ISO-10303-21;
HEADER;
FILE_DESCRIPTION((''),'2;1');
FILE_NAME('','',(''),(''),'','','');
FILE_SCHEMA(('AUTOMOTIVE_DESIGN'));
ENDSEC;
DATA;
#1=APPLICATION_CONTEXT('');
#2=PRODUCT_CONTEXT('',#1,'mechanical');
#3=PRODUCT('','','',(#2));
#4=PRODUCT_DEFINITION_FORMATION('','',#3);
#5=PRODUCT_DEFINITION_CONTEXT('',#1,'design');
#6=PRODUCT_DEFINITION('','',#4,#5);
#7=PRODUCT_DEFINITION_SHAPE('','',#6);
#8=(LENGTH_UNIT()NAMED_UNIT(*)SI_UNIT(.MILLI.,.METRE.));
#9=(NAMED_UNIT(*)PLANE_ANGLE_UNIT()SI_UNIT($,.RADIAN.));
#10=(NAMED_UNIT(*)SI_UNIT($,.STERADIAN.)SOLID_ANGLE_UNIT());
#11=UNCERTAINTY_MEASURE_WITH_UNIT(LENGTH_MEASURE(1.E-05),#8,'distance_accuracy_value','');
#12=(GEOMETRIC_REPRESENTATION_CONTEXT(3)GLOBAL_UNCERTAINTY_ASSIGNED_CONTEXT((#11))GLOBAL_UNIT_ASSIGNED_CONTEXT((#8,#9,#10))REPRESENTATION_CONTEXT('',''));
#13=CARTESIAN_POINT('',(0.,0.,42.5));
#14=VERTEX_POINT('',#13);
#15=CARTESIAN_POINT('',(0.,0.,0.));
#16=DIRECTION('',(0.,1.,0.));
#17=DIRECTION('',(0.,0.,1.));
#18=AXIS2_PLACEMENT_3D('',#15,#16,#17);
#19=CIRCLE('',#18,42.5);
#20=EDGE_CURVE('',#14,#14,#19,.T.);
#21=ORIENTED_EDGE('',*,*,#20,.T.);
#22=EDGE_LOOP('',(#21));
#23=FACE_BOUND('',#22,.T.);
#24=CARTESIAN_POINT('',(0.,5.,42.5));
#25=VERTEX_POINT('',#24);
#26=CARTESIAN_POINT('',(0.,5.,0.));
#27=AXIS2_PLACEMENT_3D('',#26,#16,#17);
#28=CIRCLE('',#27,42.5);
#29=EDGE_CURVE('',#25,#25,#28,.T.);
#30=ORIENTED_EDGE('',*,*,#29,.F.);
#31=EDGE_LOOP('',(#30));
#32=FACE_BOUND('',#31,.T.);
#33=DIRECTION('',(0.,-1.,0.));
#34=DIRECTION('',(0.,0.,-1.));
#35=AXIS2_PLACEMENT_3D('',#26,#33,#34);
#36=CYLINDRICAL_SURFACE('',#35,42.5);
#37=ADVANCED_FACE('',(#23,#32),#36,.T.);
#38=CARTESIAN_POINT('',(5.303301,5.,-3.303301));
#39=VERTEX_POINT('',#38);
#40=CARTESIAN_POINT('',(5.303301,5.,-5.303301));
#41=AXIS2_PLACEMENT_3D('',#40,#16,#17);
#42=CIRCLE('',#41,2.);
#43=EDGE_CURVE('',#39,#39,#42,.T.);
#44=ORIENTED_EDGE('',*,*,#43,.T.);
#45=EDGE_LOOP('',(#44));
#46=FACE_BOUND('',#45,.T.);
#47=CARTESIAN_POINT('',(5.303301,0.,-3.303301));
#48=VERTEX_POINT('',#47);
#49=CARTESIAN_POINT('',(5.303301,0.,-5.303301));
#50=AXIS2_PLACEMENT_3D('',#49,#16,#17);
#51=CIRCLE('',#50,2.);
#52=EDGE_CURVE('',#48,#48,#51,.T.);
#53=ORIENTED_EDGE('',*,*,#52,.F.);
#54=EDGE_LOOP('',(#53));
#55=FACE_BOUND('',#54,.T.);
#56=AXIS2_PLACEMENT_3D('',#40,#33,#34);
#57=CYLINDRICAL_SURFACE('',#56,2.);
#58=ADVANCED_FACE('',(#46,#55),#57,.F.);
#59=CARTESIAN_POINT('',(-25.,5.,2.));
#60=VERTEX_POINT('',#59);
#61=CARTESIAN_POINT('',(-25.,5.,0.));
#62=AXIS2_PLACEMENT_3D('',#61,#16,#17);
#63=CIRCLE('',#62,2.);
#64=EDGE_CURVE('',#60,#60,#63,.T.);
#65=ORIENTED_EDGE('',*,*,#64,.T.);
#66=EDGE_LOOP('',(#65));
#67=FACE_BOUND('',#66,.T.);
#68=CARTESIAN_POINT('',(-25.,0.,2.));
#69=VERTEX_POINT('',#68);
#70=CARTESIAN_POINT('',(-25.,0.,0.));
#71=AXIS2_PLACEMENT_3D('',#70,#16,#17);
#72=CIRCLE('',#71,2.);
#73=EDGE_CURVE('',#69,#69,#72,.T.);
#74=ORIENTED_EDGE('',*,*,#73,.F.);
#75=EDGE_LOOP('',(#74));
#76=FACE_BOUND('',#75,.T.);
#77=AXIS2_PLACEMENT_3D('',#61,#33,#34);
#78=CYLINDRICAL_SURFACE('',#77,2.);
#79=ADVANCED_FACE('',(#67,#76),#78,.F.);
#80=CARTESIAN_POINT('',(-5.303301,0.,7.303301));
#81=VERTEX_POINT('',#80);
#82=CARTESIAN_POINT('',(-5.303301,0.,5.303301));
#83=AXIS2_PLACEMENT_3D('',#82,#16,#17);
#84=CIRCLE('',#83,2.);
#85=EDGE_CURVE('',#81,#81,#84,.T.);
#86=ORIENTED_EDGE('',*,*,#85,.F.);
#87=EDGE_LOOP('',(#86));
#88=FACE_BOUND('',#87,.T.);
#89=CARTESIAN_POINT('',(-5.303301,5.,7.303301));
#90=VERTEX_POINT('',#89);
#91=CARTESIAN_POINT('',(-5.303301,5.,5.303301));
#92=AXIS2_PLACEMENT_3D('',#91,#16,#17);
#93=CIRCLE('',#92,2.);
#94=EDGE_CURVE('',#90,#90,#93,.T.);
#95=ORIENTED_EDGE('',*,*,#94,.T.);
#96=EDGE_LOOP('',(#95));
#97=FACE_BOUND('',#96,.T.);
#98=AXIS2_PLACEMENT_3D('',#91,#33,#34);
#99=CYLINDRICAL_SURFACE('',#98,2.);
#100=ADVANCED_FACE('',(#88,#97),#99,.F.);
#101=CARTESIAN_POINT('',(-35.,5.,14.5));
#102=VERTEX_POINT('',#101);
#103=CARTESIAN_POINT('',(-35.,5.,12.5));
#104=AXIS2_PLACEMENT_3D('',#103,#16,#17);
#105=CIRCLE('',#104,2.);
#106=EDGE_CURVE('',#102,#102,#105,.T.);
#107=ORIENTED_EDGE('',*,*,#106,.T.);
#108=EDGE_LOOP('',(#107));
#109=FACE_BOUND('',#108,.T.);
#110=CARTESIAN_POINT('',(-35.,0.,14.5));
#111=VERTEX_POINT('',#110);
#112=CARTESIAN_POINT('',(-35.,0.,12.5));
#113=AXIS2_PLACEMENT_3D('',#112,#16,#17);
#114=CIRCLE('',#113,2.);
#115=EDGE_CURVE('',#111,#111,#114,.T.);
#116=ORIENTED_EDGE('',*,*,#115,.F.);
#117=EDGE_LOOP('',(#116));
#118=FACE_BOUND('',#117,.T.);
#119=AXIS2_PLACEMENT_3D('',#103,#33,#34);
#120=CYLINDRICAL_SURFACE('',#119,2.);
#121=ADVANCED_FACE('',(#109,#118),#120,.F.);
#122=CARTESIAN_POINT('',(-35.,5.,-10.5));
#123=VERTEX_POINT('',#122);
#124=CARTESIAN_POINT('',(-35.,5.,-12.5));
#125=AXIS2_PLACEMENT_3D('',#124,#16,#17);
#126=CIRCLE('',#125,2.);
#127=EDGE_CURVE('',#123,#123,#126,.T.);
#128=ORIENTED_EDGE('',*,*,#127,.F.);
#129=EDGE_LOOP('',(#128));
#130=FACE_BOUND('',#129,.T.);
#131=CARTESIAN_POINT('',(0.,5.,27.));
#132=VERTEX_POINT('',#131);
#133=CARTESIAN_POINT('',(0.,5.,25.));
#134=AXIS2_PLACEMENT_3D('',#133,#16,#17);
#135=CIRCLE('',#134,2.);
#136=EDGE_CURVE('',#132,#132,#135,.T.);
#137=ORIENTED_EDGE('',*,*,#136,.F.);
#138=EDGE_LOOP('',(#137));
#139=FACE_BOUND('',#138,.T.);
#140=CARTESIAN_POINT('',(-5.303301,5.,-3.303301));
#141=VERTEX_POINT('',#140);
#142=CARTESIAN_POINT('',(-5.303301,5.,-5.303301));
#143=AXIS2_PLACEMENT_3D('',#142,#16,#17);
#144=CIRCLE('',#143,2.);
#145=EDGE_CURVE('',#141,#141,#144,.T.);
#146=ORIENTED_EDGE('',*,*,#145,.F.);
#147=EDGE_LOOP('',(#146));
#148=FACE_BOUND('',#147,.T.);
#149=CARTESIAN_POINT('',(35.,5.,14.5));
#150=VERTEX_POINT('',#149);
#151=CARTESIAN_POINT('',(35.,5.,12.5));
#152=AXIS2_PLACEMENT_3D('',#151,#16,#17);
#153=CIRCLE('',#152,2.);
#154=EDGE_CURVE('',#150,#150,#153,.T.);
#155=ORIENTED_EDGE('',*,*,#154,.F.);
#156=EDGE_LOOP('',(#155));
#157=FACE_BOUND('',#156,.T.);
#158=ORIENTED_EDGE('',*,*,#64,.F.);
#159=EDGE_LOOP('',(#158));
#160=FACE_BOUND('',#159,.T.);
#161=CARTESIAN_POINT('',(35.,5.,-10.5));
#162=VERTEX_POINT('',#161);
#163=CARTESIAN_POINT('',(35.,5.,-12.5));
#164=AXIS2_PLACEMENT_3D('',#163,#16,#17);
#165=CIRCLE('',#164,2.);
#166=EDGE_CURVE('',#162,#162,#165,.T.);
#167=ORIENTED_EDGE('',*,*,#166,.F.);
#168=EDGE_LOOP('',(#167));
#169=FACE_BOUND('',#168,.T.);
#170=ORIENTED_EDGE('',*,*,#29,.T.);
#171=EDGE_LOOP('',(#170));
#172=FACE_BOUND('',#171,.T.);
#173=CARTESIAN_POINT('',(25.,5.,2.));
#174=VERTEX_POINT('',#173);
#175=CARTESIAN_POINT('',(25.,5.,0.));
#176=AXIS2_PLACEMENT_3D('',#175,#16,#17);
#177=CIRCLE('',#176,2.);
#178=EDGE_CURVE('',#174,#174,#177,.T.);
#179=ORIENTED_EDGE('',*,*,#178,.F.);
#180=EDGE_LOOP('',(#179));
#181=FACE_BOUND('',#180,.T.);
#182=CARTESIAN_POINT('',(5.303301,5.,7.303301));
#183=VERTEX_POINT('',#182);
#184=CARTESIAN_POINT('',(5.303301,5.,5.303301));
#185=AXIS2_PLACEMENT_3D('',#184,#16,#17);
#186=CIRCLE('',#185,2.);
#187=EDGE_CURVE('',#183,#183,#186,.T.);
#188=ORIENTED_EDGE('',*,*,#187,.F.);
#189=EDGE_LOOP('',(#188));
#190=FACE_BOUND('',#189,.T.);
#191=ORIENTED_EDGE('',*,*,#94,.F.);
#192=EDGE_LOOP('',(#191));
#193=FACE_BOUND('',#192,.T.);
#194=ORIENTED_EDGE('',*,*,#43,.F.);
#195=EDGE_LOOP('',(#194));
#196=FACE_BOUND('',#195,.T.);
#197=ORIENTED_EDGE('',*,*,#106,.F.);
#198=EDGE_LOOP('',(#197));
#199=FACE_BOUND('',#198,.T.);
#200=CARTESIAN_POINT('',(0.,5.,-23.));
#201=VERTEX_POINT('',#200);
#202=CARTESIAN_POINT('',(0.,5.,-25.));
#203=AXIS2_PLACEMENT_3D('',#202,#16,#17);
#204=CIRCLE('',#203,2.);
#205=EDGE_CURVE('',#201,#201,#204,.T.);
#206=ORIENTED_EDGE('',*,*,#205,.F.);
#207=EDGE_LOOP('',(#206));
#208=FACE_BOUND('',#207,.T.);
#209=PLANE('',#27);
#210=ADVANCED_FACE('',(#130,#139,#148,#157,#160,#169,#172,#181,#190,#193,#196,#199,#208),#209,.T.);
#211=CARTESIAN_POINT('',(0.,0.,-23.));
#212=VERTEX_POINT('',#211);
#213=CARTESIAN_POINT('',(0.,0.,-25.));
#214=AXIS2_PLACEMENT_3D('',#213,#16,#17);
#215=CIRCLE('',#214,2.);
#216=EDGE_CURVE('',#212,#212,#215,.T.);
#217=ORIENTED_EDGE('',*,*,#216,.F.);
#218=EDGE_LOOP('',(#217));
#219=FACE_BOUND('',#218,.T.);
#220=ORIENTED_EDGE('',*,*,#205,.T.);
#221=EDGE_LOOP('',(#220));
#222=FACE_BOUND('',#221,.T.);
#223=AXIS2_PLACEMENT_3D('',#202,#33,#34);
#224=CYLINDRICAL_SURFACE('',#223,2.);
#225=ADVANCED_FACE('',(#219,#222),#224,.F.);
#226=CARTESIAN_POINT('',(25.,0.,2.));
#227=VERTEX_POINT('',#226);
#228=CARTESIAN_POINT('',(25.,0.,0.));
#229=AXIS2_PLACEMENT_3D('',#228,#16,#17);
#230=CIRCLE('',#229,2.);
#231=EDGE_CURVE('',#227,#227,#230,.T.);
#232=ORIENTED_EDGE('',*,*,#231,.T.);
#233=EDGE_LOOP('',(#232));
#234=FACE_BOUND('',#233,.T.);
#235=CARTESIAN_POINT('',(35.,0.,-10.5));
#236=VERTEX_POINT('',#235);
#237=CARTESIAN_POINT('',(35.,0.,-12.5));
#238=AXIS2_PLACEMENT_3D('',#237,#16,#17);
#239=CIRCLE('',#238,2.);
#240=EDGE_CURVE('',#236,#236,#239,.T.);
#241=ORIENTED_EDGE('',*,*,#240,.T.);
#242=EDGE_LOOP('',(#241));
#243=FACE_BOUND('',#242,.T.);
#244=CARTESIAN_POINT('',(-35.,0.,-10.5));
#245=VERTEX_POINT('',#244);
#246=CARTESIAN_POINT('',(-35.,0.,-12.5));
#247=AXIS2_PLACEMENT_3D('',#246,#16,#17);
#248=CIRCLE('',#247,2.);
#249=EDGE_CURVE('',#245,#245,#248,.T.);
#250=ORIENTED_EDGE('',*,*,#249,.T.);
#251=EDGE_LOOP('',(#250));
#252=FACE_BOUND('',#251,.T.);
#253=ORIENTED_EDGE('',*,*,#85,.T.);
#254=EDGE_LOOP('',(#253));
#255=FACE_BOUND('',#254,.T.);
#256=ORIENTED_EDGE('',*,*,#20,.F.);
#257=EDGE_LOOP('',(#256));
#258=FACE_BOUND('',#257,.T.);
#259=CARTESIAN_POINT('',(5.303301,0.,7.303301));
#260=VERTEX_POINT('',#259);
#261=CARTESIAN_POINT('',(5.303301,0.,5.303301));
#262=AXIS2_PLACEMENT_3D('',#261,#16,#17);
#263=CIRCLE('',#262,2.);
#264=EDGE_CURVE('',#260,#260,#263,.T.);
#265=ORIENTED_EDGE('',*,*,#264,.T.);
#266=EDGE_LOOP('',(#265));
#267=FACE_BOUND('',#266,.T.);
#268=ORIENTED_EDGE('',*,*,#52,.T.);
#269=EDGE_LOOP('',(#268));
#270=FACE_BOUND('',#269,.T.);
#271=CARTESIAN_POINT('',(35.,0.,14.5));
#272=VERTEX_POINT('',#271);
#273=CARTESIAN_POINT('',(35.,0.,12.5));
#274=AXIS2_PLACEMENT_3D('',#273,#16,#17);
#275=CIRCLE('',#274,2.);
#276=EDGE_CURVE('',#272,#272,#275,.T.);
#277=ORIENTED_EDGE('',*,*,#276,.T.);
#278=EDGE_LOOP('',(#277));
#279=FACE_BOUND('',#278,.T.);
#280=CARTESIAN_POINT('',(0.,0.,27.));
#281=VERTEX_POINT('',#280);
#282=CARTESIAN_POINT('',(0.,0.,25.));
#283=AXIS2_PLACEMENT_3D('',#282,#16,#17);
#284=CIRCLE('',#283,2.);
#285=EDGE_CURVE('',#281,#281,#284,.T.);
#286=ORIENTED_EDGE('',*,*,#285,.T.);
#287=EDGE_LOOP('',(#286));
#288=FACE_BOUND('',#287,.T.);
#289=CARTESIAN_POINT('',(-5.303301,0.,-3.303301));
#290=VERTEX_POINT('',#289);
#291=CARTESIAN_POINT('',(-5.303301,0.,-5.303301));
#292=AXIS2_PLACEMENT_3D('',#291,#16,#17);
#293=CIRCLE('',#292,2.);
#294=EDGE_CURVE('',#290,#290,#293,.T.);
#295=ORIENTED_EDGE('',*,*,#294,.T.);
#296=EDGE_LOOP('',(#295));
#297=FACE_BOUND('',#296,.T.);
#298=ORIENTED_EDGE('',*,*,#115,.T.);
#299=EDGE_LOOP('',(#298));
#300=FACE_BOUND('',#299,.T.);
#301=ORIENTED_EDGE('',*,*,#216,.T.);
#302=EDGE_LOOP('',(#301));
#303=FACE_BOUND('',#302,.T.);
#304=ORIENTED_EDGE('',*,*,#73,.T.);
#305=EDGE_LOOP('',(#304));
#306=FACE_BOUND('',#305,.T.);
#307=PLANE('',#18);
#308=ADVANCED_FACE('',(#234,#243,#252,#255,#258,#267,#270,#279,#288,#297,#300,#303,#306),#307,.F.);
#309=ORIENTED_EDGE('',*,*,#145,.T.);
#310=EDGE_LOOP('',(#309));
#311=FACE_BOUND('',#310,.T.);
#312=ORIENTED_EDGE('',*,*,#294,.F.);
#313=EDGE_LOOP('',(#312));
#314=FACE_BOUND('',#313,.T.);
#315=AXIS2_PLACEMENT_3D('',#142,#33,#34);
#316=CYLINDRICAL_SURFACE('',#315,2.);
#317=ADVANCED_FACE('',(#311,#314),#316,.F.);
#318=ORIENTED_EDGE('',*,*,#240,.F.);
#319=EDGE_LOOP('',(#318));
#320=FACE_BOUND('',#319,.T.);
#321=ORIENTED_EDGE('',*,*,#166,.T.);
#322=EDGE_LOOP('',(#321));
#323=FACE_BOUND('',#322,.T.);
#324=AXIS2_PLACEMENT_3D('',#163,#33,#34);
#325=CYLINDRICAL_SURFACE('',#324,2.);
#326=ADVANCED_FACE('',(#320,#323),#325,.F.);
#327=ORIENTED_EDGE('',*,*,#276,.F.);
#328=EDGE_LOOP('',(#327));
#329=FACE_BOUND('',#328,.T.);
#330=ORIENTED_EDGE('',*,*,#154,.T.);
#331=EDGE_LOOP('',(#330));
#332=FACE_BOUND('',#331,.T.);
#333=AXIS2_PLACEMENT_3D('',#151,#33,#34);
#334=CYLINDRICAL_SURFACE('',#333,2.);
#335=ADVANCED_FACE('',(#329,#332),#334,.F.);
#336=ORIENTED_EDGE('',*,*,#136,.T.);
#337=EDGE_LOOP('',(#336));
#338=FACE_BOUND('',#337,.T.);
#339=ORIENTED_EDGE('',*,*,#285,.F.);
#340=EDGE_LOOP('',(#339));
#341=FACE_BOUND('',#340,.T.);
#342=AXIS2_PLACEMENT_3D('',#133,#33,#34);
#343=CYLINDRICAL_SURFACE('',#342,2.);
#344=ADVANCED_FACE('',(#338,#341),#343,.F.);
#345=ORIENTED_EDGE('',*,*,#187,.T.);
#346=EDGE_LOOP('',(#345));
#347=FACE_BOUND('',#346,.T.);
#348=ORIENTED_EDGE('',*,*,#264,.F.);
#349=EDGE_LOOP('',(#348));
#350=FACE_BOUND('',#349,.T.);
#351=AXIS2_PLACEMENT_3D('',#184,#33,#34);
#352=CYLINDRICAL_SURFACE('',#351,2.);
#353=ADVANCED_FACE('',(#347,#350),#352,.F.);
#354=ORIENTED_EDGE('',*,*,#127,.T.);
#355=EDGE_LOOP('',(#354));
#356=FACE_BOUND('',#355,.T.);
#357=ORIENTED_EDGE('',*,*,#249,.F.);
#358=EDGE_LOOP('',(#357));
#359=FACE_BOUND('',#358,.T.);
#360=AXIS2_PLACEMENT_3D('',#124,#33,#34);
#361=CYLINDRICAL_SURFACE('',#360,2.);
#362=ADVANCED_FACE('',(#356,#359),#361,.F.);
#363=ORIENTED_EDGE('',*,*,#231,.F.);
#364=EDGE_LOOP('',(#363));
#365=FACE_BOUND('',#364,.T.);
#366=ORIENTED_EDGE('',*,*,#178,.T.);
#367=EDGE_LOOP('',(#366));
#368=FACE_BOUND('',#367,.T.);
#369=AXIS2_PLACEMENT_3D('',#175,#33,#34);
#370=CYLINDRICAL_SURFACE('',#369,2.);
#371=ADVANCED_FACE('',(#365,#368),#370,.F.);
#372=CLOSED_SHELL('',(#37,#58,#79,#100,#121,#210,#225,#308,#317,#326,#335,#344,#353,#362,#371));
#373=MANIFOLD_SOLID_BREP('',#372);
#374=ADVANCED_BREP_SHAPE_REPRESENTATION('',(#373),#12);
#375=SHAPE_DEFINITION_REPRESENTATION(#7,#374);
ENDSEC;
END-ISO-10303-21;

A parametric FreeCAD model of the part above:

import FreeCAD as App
import Part
import Sketcher

V = App.Vector

doc = App.newDocument("Part")
body = doc.addObject("PartDesign::Body", "Body")

sketch1 = body.newObject("Sketcher::SketchObject", "Sketch")
sketch1.AttachmentSupport = (doc.getObject("XZ_Plane"), [""])
sketch1.MapMode = "FlatFace"
sketch1.addGeometry(Part.Circle(V(0, 0, 0), V(0, 0, 1), 42.5), False)
sketch1.addGeometry(Part.Circle(V(-35, -12.5, 0), V(0, 0, 1), 2), False)
sketch1.addGeometry(Part.Circle(V(0, -25, 0), V(0, 0, 1), 2), False)
sketch1.addGeometry(Part.Circle(V(-5.3, -5.3, 0), V(0, 0, 1), 2), False)
sketch1.addGeometry(Part.Circle(V(-35, 12.5, 0), V(0, 0, 1), 2), False)
sketch1.addGeometry(Part.Circle(V(-25, 0, 0), V(0, 0, 1), 2), False)
sketch1.addGeometry(Part.Circle(V(-5.3, 5.3, 0), V(0, 0, 1), 2), False)
sketch1.addGeometry(Part.Circle(V(5.3, -5.3, 0), V(0, 0, 1), 2), False)
sketch1.addGeometry(Part.Circle(V(25, 0, 0), V(0, 0, 1), 2), False)
sketch1.addGeometry(Part.Circle(V(35, -12.5, 0), V(0, 0, 1), 2), False)
sketch1.addGeometry(Part.Circle(V(5.3, 5.3, 0), V(0, 0, 1), 2), False)
sketch1.addGeometry(Part.Circle(V(0, 25, 0), V(0, 0, 1), 2), False)
sketch1.addGeometry(Part.Circle(V(35, 12.5, 0), V(0, 0, 1), 2), False)
sketch1.addConstraint(Sketcher.Constraint("Coincident", 0, 3, -1, 1))
sketch1.addConstraint(Sketcher.Constraint("Equal", 1, 2))
sketch1.addConstraint(Sketcher.Constraint("Equal", 2, 3))
sketch1.addConstraint(Sketcher.Constraint("Equal", 3, 4))
sketch1.addConstraint(Sketcher.Constraint("Equal", 4, 5))
sketch1.addConstraint(Sketcher.Constraint("Equal", 5, 6))
sketch1.addConstraint(Sketcher.Constraint("Equal", 6, 7))
sketch1.addConstraint(Sketcher.Constraint("Equal", 7, 8))
sketch1.addConstraint(Sketcher.Constraint("Equal", 8, 9))
sketch1.addConstraint(Sketcher.Constraint("Equal", 9, 10))
sketch1.addConstraint(Sketcher.Constraint("Equal", 10, 11))
sketch1.addConstraint(Sketcher.Constraint("Equal", 11, 12))
sketch1.addConstraint(Sketcher.Constraint("Symmetric", 6, 3, 7, 3, -1, 1))
sketch1.addConstraint(Sketcher.Constraint("Symmetric", 5, 3, 8, 3, -1, 1))
sketch1.addConstraint(Sketcher.Constraint("Symmetric", 4, 3, 9, 3, -1, 1))
sketch1.addConstraint(Sketcher.Constraint("Symmetric", 3, 3, 10, 3, -1, 1))
sketch1.addConstraint(Sketcher.Constraint("Symmetric", 2, 3, 11, 3, -1, 1))
sketch1.addConstraint(Sketcher.Constraint("Symmetric", 1, 3, 12, 3, -1, 1))
sketch1.addConstraint(Sketcher.Constraint("Symmetric", 3, 3, 7, 3, -2))
sketch1.addConstraint(Sketcher.Constraint("Symmetric", 1, 3, 9, 3, -2))
sketch1.addConstraint(Sketcher.Constraint("PointOnObject", 2, 3, -2))
sketch1.addConstraint(Sketcher.Constraint("PointOnObject", 5, 3, -1))
sketch1.addConstraint(Sketcher.Constraint("Diameter", 0, 85.0))
sketch1.addConstraint(Sketcher.Constraint("Diameter", 1, 4.0))
sketch1.addConstraint(Sketcher.Constraint("DistanceX", 1, 3, -1, 1, 35.0))
sketch1.addConstraint(Sketcher.Constraint("DistanceY", 2, 3, -1, 1, 25.0))
sketch1.addConstraint(Sketcher.Constraint("DistanceX", 5, 3, -1, 1, 25.0))
sketch1.addConstraint(Sketcher.Constraint("DistanceY", 1, 3, 4, 3, 25.0))
sketch1.addConstraint(Sketcher.Constraint("DistanceX", 3, 3, -1, 1, 5.303301))
sketch1.addConstraint(Sketcher.Constraint("DistanceY", 3, 3, -1, 1, 5.303301))
pad1 = body.newObject("PartDesign::Pad", "Pad")
pad1.Profile = sketch1
pad1.Length = 5
pad1.Reversed = True

doc.recompute()
